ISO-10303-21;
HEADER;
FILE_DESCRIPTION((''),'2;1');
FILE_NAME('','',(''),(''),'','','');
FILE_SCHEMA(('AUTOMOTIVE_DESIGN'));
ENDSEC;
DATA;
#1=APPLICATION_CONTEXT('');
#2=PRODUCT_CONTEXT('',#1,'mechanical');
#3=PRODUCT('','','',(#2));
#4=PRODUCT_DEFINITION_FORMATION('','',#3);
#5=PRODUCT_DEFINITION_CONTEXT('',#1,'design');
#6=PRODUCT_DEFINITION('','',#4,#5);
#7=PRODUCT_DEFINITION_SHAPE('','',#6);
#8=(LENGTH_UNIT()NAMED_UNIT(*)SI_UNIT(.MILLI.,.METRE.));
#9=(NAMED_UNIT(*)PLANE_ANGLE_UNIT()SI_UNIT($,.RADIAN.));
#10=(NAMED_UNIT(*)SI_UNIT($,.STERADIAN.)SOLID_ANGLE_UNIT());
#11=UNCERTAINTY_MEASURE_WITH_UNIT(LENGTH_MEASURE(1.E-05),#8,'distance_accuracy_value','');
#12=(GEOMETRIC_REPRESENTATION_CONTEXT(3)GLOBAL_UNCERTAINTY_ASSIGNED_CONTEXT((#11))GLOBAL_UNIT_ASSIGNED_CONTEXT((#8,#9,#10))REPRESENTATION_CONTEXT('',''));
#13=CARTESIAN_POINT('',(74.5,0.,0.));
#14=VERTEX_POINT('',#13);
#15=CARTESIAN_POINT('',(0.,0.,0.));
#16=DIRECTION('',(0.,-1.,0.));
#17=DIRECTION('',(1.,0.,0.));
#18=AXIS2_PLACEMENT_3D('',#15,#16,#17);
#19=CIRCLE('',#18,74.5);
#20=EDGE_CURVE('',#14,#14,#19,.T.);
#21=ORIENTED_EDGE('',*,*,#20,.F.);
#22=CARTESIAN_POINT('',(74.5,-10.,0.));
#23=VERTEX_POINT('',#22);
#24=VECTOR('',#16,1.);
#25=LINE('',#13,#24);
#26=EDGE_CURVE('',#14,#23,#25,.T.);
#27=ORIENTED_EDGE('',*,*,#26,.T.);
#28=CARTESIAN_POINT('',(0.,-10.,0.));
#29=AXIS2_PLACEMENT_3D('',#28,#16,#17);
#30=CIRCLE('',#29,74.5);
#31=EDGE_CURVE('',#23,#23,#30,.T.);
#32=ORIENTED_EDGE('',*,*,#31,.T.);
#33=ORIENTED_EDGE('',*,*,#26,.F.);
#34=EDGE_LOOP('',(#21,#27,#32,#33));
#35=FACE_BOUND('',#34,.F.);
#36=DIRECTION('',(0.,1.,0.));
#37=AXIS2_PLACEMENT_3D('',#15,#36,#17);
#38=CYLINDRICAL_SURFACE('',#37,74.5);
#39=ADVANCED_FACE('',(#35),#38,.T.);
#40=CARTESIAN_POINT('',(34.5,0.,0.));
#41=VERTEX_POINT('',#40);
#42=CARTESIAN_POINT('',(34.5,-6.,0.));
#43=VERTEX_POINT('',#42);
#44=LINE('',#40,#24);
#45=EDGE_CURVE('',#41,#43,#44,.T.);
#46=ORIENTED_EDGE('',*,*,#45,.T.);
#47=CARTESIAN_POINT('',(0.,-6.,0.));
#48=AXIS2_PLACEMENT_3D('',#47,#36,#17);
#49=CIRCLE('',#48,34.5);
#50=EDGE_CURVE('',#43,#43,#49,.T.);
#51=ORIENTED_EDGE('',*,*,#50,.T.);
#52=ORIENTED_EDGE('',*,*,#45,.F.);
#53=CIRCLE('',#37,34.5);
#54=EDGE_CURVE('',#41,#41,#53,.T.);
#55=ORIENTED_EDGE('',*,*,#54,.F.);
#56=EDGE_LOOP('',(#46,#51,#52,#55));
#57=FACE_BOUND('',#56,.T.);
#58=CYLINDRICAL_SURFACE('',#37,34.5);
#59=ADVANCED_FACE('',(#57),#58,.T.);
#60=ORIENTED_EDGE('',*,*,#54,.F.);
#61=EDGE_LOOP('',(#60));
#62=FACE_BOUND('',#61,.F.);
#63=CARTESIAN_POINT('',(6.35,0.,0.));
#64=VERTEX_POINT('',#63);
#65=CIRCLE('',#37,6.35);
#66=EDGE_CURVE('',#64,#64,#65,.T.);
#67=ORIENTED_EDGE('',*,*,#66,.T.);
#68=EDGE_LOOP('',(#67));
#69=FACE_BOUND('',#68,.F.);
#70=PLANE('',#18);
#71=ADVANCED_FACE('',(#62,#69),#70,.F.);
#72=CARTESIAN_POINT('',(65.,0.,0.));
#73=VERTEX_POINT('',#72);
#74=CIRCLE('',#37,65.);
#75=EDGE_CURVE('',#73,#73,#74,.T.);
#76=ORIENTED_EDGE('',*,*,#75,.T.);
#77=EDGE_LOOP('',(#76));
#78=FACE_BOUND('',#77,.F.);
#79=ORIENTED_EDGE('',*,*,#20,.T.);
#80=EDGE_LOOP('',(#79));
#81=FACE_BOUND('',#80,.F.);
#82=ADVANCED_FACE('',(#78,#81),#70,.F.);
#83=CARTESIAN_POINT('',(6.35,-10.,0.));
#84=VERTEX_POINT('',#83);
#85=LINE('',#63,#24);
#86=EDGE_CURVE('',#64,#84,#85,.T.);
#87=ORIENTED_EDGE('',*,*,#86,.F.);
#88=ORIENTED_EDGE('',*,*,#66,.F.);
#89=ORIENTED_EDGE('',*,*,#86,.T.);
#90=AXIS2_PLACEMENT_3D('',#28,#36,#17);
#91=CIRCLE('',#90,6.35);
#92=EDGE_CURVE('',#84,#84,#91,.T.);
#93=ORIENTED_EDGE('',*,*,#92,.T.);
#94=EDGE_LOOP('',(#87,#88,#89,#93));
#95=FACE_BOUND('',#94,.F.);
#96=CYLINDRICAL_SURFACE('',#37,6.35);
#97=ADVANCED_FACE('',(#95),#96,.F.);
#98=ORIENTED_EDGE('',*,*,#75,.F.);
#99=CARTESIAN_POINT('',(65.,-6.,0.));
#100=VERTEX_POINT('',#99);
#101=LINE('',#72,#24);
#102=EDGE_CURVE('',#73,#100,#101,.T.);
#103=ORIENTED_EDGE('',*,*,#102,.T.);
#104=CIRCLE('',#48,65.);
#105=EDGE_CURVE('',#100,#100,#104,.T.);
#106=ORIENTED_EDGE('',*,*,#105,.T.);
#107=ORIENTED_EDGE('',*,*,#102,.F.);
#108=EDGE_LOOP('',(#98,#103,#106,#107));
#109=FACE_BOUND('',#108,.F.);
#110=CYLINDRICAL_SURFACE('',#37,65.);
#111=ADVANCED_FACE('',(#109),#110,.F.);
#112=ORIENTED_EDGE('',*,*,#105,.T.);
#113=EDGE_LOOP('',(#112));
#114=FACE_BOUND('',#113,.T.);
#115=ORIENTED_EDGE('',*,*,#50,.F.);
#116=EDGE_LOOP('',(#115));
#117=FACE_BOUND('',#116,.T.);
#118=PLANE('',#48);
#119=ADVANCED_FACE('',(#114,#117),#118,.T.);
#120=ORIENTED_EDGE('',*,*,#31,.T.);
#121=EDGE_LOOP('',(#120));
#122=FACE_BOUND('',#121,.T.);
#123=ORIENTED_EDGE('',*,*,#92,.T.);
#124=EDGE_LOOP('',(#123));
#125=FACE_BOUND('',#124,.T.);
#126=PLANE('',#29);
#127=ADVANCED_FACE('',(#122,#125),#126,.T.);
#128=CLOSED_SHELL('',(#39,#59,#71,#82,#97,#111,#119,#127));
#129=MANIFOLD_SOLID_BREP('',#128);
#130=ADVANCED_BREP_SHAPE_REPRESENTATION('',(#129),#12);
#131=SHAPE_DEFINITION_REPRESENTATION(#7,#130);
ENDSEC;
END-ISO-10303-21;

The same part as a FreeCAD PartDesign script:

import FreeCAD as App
import Part
import Sketcher
from FreeCAD import Vector

doc = App.newDocument("Part")
params = doc.addObject("Spreadsheet::Sheet", "Params")
for row, (alias, value) in enumerate([
    ("sketch1_diameter", "149 mm"),
    ("pad1_length", "10 mm"),
    ("sketch2_diameter", "12.7 mm"),
    ("sketch3_diameter", "130 mm"),
    ("sketch3_diameter2", "69 mm"),
    ("pocket2_length", "6 mm"),
], start=1):
    params.set(f"A{row}", alias)
    params.set(f"B{row}", "=" + value)
    params.setAlias(f"B{row}", alias)

body = doc.addObject("PartDesign::Body", "Body")

sketch1 = body.newObject("Sketcher::SketchObject", "Sketch")
sketch1.AttachmentSupport = (doc.getObject("XZ_Plane"), [""])
sketch1.MapMode = "FlatFace"
sketch1.addGeometry(Part.Circle(Vector(0, 0, 0), Vector(0, 0, 1), 74), False)
sketch1.addConstraint([
    Sketcher.Constraint("Coincident", 0, 3, -1, 1),
    Sketcher.Constraint("Diameter", 0, 149.0),
])
sketch1.setExpression("Constraints[1]", "Params.sketch1_diameter")
pad1 = body.newObject("PartDesign::Pad", "Pad")
pad1.Profile = sketch1
pad1.setExpression("Length", "Params.pad1_length")

sketch2 = body.newObject("Sketcher::SketchObject", "Sketch001")
sketch2.AttachmentSupport = (doc.getObject("XZ_Plane"), [""])
sketch2.MapMode = "FlatFace"
sketch2.addGeometry(Part.Circle(Vector(0, 0, 0), Vector(0, 0, 1), 6), False)
sketch2.addConstraint([
    Sketcher.Constraint("Coincident", 0, 3, -1, 1),
    Sketcher.Constraint("Diameter", 0, 12.7),
])
sketch2.setExpression("Constraints[1]", "Params.sketch2_diameter")
pocket1 = body.newObject("PartDesign::Pocket", "Pocket")
pocket1.Profile = sketch2
pocket1.Type = "ThroughAll"
pocket1.Reversed = True

sketch3 = body.newObject("Sketcher::SketchObject", "Sketch002")
sketch3.AttachmentSupport = (doc.getObject("XZ_Plane"), [""])
sketch3.MapMode = "FlatFace"
sketch3.addGeometry([
    Part.Circle(Vector(0, 0, 0), Vector(0, 0, 1), 65),
    Part.Circle(Vector(0, 0, 0), Vector(0, 0, 1), 34),
], False)
sketch3.addConstraint([
    Sketcher.Constraint("Coincident", 0, 3, -1, 1),
    Sketcher.Constraint("Coincident", 1, 3, -1, 1),
    Sketcher.Constraint("Diameter", 0, 130.0),
    Sketcher.Constraint("Diameter", 1, 69.0),
])
sketch3.setExpression("Constraints[2]", "Params.sketch3_diameter")
sketch3.setExpression("Constraints[3]", "Params.sketch3_diameter2")
pocket2 = body.newObject("PartDesign::Pocket", "Pocket001")
pocket2.Profile = sketch3
pocket2.setExpression("Length", "Params.pocket2_length")
pocket2.Reversed = True

doc.recompute()
